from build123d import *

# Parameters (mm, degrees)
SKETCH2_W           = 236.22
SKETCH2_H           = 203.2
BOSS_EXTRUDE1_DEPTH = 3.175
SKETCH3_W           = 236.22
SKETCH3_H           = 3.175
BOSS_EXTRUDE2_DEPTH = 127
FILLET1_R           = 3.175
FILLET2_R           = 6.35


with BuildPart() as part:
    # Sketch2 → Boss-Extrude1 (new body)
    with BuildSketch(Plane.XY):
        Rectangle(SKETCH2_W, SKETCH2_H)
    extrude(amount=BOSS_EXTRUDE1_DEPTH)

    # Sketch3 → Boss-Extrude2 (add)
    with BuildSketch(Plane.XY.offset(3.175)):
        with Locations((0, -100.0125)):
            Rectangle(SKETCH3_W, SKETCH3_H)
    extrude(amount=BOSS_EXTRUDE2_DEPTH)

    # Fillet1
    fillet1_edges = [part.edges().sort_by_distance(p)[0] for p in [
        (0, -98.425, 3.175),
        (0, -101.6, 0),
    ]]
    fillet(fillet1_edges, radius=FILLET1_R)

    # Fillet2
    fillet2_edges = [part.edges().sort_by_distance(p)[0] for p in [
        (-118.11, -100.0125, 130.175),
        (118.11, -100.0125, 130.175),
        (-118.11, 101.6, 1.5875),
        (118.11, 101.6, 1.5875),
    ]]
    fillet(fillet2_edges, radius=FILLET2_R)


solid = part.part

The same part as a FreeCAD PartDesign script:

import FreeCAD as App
import Part
import Sketcher
Q = App.Units.Quantity


def edges_at(feature, points):
    """Names of the edges that pass closest to the given points."""
    edges = feature.Shape.Edges
    near = lambda p: min(range(len(edges)), key=lambda i: edges[i].distToShape(Part.Vertex(*p))[0])
    return sorted({f"Edge{near(p) + 1}" for p in points})


def add_polygon(sketch, points):
    """Adds a closed chain of lines whose ends are joined by coincident constraints."""
    first, n = sketch.GeometryCount, len(points)
    for a, b in zip(points, points[1:] + points[:1]):
        sketch.addGeometry(Part.LineSegment(App.Vector(*a, 0), App.Vector(*b, 0)), False)
    for i in range(n):
        sketch.addConstraint(Sketcher.Constraint("Coincident", first + i, 2, first + (i + 1) % n, 1))

doc = App.newDocument("Part")
params = doc.addObject("Spreadsheet::Sheet", "Params")
for row, (alias, value) in enumerate([
    ("sketch1_height", "8 in"),
    ("sketch1_width", "9.3 in"),
    ("pad1_length", "0.125 in"),
    ("sketch2_width", "9.3 in"),
    ("sketch2_height", "0.125 in"),
    ("pad2_length", "5 in"),
    ("fillet_radius", "0.125 in"),
    ("fillet2_radius", "0.25 in"),
], start=1):
    params.set(f"A{row}", alias)
    params.set(f"B{row}", "=" + value)
    params.setAlias(f"B{row}", alias)

body = doc.addObject("PartDesign::Body", "Body")

sketch1 = body.newObject("Sketcher::SketchObject", "Sketch")
sketch1.AttachmentSupport = (doc.getObject("XY_Plane"), [""])
sketch1.MapMode = "FlatFace"
add_polygon(sketch1, [(-118.11, 101.6), (-118.11, -101.6), (118.11, -101.6), (118.11, 101.6)])
sketch1.addConstraint([
    Sketcher.Constraint("Vertical", 0),
    Sketcher.Constraint("Horizontal", 1),
    Sketcher.Constraint("Vertical", 2),
    Sketcher.Constraint("Horizontal", 3),
    Sketcher.Constraint("Symmetric", 0, 2, 2, 2, -1, 1),
    Sketcher.Constraint("DistanceY", 0, 2, 0, 1, Q("8 in")),
    Sketcher.Constraint("DistanceX", 1, 1, 1, 2, Q("9.3 in")),
])
sketch1.setExpression("Constraints[9]", "Params.sketch1_height")
sketch1.setExpression("Constraints[10]", "Params.sketch1_width")
pad1 = body.newObject("PartDesign::Pad", "Pad")
pad1.Profile = sketch1
pad1.setExpression("Length", "Params.pad1_length")

sketch2 = body.newObject("Sketcher::SketchObject", "Sketch001")
sketch2.AttachmentSupport = (doc.getObject("XY_Plane"), [""])
sketch2.MapMode = "FlatFace"
sketch2.AttachmentOffset = App.Placement(App.Vector(0, 0, 0.125 * 25.4), App.Rotation())
add_polygon(sketch2, [(-118.11, -98.425), (-118.11, -101.6), (118.11, -101.6), (118.11, -98.425)])
sketch2.addConstraint([
    Sketcher.Constraint("Vertical", 0),
    Sketcher.Constraint("Horizontal", 1),
    Sketcher.Constraint("Vertical", 2),
    Sketcher.Constraint("Horizontal", 3),
    Sketcher.Constraint("DistanceX", 1, 1, 1, 2, Q("9.3 in")),
    Sketcher.Constraint("DistanceY", 0, 2, -1, 1, Q("4 in")),
    Sketcher.Constraint("DistanceY", 0, 2, 0, 1, Q("0.125 in")),
    Sketcher.Constraint("DistanceX", 0, 2, -1, 1, Q("4.65 in")),
])
sketch2.setExpression("Constraints[8]", "Params.sketch2_width")
sketch2.setExpression("Constraints[10]", "Params.sketch2_height")
pad2 = body.newObject("PartDesign::Pad", "Pad001")
pad2.Profile = sketch2
pad2.setExpression("Length", "Params.pad2_length")
doc.recompute()

fillet = body.newObject("PartDesign::Fillet", "Fillet")
fillet.Base = (pad2, edges_at(pad2, [(0, -98.425, 3.175), (0, -101.6, 0)]))
fillet.setExpression("Radius", "Params.fillet_radius")
doc.recompute()

fillet2 = body.newObject("PartDesign::Fillet", "Fillet001")
fillet2.Base = (fillet, edges_at(fillet, [
    (-118.11, -100.013, 130.175),
    (118.11, -100.013, 130.175),
    (-118.11, 101.6, 1.587),
    (118.11, 101.6, 1.587),
]))
fillet2.setExpression("Radius", "Params.fillet2_radius")

doc.recompute()
